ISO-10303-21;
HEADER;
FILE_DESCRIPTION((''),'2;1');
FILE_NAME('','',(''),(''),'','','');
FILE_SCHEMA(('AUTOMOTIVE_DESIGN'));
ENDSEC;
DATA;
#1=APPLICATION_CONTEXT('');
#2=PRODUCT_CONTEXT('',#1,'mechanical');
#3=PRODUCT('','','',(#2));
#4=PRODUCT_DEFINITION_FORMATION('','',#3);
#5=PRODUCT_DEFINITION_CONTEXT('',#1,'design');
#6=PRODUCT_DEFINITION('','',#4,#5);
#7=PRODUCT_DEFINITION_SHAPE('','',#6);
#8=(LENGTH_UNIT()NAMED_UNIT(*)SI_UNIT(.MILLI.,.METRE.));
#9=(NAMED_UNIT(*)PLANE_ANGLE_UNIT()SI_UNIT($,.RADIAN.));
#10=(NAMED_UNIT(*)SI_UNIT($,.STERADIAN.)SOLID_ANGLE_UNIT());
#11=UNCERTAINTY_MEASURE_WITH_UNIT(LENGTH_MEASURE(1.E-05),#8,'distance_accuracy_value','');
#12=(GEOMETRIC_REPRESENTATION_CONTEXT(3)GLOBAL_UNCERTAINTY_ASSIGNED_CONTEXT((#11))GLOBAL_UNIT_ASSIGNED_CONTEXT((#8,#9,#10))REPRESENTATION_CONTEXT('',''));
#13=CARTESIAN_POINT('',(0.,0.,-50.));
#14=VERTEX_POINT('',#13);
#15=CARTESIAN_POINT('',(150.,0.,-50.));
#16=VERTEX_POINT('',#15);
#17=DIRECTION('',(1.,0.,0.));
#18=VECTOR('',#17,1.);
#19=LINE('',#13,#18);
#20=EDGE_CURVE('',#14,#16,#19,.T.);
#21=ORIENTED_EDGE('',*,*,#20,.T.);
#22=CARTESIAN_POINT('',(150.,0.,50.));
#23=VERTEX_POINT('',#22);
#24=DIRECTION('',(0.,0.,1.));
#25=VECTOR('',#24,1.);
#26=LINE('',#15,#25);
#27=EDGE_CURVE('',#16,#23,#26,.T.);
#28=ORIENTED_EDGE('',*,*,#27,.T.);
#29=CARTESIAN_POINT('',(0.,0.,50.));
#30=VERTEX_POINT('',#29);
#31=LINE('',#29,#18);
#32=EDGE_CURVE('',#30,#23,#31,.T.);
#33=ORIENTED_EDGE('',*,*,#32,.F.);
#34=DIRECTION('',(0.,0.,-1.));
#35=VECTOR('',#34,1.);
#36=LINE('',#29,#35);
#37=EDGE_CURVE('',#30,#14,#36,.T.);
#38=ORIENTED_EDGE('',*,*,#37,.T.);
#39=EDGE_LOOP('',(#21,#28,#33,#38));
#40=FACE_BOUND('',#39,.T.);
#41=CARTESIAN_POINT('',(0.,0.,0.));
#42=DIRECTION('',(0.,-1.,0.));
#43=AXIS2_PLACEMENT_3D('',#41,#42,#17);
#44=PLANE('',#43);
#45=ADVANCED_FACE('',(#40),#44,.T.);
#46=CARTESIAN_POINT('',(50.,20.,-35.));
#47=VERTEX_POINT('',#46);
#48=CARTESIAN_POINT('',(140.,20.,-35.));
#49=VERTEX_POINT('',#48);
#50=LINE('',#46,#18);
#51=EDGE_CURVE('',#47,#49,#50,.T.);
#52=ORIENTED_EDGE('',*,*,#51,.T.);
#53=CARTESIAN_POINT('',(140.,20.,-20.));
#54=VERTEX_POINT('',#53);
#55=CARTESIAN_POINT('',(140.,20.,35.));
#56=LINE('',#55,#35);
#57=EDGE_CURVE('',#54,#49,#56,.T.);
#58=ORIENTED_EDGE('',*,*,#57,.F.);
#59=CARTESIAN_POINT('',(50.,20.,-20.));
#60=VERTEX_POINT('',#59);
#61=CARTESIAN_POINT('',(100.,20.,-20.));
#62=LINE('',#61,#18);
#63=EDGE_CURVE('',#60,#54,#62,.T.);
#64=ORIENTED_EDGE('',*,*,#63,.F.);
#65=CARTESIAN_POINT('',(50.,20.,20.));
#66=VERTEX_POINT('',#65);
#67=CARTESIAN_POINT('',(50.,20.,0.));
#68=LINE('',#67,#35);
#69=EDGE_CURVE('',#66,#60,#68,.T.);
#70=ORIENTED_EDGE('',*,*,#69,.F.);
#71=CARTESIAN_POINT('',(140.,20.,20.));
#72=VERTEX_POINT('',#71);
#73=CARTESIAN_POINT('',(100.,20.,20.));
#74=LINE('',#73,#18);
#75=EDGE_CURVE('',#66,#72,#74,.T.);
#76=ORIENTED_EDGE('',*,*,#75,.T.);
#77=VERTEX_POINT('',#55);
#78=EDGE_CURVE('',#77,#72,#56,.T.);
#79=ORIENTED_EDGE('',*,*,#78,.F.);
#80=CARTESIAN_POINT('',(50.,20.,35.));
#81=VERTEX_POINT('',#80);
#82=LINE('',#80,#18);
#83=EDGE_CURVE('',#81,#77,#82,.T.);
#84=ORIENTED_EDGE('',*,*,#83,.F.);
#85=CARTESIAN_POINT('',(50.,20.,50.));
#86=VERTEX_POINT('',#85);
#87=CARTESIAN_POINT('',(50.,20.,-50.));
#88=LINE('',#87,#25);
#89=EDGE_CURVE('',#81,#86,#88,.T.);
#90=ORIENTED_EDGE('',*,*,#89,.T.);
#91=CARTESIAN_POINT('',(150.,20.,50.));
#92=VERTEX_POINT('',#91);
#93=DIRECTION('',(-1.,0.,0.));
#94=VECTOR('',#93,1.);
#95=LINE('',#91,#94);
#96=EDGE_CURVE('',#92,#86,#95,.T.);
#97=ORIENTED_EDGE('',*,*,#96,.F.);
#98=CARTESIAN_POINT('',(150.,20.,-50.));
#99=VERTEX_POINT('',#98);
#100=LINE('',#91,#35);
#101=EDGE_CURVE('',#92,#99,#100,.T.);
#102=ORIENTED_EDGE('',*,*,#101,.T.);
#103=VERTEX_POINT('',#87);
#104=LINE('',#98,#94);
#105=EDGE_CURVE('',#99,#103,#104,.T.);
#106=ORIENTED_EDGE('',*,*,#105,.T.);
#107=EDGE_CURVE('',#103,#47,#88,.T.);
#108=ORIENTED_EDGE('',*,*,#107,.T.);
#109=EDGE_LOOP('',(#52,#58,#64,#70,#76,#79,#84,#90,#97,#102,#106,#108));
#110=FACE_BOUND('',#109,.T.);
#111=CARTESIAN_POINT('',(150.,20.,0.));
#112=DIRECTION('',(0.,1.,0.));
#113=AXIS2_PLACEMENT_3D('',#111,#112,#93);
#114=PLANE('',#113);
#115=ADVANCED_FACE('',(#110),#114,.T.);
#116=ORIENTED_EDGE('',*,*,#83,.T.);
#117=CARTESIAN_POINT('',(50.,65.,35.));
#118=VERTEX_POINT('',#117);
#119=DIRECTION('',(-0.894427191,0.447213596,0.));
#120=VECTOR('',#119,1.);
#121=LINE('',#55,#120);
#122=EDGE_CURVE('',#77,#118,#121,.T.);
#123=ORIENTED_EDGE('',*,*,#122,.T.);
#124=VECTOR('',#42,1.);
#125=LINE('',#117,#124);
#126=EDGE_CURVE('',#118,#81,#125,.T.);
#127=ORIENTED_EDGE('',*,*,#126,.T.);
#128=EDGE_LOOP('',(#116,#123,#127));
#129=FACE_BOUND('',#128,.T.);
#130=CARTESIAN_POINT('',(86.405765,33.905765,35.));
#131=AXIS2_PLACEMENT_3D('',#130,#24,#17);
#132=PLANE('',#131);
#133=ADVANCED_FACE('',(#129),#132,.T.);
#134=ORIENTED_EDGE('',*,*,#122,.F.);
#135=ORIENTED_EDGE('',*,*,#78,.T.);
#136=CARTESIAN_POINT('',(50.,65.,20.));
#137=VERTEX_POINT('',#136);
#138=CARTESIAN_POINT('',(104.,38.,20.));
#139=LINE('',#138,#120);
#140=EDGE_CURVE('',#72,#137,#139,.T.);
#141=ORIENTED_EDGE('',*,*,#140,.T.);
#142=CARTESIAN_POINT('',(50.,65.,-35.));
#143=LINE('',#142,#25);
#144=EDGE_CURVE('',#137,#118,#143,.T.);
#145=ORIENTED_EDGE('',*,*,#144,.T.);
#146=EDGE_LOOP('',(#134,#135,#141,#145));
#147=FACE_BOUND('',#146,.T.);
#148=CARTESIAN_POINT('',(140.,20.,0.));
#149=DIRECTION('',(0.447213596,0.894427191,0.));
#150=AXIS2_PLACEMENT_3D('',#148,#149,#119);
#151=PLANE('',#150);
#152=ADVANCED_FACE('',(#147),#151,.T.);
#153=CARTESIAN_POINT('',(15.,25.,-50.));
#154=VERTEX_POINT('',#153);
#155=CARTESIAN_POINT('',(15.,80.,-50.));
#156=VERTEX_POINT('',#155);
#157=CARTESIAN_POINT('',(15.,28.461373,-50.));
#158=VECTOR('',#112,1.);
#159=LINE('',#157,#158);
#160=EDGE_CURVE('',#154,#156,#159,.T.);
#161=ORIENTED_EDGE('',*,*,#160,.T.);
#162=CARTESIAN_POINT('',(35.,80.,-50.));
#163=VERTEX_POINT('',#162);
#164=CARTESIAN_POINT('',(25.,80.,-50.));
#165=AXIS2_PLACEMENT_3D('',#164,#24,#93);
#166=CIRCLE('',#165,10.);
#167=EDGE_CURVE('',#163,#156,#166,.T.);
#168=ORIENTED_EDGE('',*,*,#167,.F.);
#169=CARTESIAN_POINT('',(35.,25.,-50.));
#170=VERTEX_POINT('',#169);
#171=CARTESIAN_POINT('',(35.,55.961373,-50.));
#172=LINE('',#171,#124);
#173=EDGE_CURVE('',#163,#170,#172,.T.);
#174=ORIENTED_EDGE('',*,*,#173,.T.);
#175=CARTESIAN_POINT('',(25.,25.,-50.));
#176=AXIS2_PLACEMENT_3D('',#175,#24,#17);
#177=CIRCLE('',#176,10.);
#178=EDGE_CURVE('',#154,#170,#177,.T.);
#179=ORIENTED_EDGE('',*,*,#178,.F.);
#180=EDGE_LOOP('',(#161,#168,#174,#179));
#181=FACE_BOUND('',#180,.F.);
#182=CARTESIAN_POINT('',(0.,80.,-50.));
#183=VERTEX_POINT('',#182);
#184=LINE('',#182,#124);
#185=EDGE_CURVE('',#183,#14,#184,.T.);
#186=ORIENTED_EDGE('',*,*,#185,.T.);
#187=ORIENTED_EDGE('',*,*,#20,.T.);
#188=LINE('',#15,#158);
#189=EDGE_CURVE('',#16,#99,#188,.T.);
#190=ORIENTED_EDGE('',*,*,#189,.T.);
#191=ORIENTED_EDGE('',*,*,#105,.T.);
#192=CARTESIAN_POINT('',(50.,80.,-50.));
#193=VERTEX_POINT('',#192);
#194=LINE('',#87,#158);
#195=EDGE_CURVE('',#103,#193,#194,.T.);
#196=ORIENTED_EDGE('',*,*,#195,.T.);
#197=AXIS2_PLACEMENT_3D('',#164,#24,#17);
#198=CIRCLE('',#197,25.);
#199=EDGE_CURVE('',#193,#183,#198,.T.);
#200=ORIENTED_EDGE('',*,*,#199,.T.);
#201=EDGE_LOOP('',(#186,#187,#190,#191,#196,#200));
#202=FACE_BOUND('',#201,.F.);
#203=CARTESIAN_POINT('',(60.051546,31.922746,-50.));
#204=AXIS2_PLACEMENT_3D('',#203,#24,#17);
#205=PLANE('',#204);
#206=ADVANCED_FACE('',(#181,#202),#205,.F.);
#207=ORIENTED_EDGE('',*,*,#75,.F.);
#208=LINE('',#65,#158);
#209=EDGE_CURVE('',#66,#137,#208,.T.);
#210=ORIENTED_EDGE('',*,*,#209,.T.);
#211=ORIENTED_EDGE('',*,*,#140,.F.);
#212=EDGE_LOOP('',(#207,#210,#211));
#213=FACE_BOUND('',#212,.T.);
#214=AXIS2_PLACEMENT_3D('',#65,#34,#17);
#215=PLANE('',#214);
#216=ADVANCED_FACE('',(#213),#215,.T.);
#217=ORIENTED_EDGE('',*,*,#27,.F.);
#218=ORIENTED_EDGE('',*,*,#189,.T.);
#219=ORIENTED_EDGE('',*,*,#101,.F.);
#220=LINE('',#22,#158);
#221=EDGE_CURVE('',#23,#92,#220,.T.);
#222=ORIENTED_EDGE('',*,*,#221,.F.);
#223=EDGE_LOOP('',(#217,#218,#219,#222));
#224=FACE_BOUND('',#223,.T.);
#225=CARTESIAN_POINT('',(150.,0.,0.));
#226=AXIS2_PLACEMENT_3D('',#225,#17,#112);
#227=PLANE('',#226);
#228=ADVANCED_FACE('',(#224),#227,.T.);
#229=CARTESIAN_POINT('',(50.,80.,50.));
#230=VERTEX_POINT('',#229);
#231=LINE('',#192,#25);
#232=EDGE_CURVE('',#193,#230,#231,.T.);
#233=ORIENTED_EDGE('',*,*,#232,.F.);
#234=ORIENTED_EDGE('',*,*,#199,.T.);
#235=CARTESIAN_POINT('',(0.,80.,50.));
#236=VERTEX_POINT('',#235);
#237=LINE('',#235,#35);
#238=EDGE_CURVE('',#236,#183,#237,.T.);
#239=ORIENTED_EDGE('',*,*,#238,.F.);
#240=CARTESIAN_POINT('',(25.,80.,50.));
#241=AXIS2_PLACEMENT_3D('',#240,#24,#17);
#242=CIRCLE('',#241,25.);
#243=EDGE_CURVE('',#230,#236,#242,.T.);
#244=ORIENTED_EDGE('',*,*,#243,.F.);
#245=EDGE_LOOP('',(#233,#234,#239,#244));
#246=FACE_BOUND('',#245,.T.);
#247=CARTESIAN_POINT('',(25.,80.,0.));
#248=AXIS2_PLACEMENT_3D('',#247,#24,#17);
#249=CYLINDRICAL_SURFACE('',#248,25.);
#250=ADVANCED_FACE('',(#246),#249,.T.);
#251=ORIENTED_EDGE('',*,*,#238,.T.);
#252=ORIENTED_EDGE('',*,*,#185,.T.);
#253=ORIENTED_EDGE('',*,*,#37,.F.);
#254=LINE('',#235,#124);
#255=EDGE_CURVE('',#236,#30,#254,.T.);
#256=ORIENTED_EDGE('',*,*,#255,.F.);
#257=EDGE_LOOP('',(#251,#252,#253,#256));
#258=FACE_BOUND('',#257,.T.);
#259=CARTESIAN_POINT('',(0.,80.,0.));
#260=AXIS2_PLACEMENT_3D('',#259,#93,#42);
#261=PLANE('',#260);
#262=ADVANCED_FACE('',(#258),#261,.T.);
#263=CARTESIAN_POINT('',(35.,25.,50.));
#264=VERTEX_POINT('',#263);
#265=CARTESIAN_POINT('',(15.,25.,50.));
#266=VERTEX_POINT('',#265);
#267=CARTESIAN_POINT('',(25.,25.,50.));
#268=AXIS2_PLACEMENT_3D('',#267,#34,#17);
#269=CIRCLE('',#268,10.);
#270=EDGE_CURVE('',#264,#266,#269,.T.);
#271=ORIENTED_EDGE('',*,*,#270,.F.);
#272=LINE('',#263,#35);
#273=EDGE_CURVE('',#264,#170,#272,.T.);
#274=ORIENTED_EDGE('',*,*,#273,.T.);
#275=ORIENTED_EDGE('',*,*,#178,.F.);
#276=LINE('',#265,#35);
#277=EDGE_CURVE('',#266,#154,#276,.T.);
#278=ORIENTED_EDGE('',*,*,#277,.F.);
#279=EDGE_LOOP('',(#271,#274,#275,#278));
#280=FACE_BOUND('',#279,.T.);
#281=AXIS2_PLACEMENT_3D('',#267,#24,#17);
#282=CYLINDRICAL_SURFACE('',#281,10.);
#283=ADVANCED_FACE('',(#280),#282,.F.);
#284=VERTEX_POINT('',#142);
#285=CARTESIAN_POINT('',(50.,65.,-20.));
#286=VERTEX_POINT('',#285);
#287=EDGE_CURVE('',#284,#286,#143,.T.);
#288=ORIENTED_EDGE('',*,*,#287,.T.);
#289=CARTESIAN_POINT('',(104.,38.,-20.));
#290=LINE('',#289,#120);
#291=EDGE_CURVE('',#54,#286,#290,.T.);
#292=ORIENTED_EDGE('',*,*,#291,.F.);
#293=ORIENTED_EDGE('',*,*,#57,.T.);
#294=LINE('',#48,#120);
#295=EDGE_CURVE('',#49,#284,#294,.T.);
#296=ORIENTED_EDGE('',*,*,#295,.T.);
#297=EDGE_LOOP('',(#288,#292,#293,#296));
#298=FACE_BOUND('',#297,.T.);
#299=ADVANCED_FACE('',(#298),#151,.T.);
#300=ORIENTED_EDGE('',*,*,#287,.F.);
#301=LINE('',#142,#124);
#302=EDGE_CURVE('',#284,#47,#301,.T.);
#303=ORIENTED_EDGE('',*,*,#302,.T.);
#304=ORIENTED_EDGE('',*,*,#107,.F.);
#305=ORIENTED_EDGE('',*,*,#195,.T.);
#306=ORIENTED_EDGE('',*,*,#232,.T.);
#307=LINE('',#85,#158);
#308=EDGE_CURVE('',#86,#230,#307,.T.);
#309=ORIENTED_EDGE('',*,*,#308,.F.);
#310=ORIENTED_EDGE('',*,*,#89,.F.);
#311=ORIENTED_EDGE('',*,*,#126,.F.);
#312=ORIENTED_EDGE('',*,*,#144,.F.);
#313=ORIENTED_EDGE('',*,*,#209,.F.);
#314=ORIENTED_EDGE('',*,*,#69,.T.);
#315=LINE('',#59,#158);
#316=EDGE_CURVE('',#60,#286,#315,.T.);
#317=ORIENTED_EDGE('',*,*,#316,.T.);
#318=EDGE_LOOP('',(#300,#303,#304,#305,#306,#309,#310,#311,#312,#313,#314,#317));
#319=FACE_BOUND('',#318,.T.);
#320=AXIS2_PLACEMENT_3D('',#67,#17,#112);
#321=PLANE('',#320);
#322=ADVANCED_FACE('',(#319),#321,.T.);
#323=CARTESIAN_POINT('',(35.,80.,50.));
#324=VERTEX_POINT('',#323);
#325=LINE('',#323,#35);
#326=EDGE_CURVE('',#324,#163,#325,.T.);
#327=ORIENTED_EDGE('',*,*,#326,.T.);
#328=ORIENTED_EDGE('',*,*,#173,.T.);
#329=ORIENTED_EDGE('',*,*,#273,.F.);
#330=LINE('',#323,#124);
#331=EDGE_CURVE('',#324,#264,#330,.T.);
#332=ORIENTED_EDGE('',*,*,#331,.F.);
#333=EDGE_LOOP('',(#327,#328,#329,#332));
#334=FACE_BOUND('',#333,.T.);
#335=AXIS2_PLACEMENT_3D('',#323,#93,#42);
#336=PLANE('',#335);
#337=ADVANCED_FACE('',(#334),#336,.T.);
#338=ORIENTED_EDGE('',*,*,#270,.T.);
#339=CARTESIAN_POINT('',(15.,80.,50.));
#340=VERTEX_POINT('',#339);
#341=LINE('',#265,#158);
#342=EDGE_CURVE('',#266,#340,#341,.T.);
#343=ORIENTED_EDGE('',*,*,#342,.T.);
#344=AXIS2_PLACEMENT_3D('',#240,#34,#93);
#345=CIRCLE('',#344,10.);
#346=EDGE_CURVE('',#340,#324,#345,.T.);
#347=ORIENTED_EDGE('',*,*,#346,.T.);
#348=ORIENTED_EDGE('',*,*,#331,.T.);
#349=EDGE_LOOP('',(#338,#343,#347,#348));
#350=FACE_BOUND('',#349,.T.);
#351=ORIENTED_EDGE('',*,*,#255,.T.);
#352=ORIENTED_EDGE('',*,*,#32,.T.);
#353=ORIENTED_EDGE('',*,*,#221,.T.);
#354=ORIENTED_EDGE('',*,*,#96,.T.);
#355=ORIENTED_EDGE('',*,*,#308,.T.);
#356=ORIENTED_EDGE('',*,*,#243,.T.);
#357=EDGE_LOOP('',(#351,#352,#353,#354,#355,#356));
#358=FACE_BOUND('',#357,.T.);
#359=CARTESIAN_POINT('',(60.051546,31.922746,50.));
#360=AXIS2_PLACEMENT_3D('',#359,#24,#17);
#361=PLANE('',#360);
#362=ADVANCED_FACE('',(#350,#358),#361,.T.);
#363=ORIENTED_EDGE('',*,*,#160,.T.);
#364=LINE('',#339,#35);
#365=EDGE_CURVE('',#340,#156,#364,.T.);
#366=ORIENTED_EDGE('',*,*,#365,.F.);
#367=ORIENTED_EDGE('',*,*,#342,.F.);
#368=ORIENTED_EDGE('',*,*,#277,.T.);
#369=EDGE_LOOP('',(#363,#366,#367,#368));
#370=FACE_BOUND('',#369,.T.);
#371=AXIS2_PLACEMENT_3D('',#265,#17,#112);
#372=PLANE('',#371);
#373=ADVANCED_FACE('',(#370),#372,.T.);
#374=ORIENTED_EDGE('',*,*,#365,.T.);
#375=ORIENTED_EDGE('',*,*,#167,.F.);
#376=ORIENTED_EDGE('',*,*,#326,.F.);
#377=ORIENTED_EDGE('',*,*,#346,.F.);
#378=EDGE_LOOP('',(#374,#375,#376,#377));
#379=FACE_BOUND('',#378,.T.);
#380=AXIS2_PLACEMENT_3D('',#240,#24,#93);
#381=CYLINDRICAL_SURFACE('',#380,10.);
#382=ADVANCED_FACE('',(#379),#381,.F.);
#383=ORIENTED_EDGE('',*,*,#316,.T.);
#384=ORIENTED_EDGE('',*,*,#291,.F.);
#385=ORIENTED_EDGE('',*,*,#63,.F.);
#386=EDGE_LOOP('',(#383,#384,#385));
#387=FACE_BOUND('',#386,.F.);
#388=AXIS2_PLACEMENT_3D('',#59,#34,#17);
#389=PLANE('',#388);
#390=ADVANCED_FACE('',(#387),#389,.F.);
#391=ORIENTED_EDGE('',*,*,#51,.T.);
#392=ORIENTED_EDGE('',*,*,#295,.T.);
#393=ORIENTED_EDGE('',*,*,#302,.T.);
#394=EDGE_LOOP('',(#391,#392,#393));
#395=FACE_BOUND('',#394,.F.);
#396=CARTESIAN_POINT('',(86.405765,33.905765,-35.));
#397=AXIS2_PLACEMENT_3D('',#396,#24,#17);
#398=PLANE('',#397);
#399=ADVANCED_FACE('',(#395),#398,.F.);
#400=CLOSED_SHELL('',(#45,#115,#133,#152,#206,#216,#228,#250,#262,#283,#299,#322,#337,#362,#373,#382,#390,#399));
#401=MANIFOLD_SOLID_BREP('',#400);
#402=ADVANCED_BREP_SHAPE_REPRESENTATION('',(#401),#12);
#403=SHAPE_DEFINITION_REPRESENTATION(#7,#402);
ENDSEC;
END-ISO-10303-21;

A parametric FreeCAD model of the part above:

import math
import FreeCAD as App
import Part
import Sketcher

V = App.Vector


def add_polygon(sketch, points):
    """Adds a closed chain of lines whose ends are joined by coincident constraints."""
    first, n = sketch.GeometryCount, len(points)
    for a, b in zip(points, points[1:] + points[:1]):
        sketch.addGeometry(Part.LineSegment(App.Vector(*a, 0), App.Vector(*b, 0)), False)
    for i in range(n):
        sketch.addConstraint(Sketcher.Constraint("Coincident", first + i, 2, first + (i + 1) % n, 1))

doc = App.newDocument("Part")
body = doc.addObject("PartDesign::Body", "Body")

# Sketch on XY plane
sketch1 = body.newObject("Sketcher::SketchObject", "Sketch")
sketch1.AttachmentSupport = (doc.getObject("XY_Plane"), [""])
sketch1.MapMode = "FlatFace"
sketch1.addGeometry([
    Part.LineSegment(V(0, 0, 0), V(150, 0, 0)),  # 0
    Part.LineSegment(V(150, 0, 0), V(150, 20, 0)),  # 1
    Part.LineSegment(V(150, 20, 0), V(50, 20, 0)),  # 2
    Part.LineSegment(V(50, 20, 0), V(50, 80, 0)),  # 3
    Part.ArcOfCircle(Part.Circle(V(25, 80, 0), V(0, 0, 1), 25), math.radians(0), math.radians(180)),  # 4
    Part.LineSegment(V(0, 80, 0), V(0, 0, 0)),  # 5
], False)
sketch1.addConstraint([
    Sketcher.Constraint("Coincident", 0, 2, 1, 1),
    Sketcher.Constraint("Coincident", 1, 2, 2, 1),
    Sketcher.Constraint("Coincident", 2, 2, 3, 1),
    Sketcher.Constraint("Tangent", 3, 2, 4, 1),
    Sketcher.Constraint("Tangent", 4, 2, 5, 1),
    Sketcher.Constraint("Coincident", 5, 2, 0, 1),
    Sketcher.Constraint("Horizontal", 0),
    Sketcher.Constraint("Vertical", 1),
    Sketcher.Constraint("Horizontal", 2),
    Sketcher.Constraint("Vertical", 3),
    Sketcher.Constraint("Vertical", 5),
    Sketcher.Constraint("Coincident", 5, 2, -1, 1),
    Sketcher.Constraint("Radius", 4, 25.0),
    Sketcher.Constraint("DistanceX", 0, 1, 0, 2, 150.0),
    Sketcher.Constraint("DistanceY", 1, 1, 1, 2, 20.0),
    Sketcher.Constraint("DistanceY", 3, 1, 3, 2, 60.0),
])
pad1 = body.newObject("PartDesign::Pad", "Pad")
pad1.Profile = sketch1
pad1.Type = "TwoLengths"
pad1.Length = 50
pad1.Length2 = 50

# Sketch on XY plane
sketch2 = body.newObject("Sketcher::SketchObject", "Sketch001")
sketch2.AttachmentSupport = (doc.getObject("XY_Plane"), [""])
sketch2.MapMode = "FlatFace"
sketch2.AttachmentOffset = App.Placement(V(0, 0, 50), App.Rotation())
sketch2.addGeometry([
    Part.LineSegment(V(35, 25, 0), V(35, 80, 0)),
    Part.ArcOfCircle(Part.Circle(V(25, 80, 0), V(0, 0, 1), 10), math.radians(0), math.radians(180)),
    Part.LineSegment(V(15, 80, 0), V(15, 25, 0)),
    Part.ArcOfCircle(Part.Circle(V(25, 25, 0), V(0, 0, 1), 10), math.radians(180), math.radians(360)),
], False)
sketch2.addConstraint([
    Sketcher.Constraint("Tangent", 0, 2, 1, 1),
    Sketcher.Constraint("Tangent", 1, 2, 2, 1),
    Sketcher.Constraint("Tangent", 2, 2, 3, 1),
    Sketcher.Constraint("Tangent", 3, 2, 0, 1),
    Sketcher.Constraint("Vertical", 0),
    Sketcher.Constraint("Vertical", 2),
    Sketcher.Constraint("Radius", 1, 10.0),
    Sketcher.Constraint("DistanceY", 0, 1, 0, 2, 55.0),
    Sketcher.Constraint("DistanceX", -1, 1, 1, 3, 25.0),
    Sketcher.Constraint("DistanceY", -1, 1, 1, 3, 80.0),
])
pocket1 = body.newObject("PartDesign::Pocket", "Pocket")
pocket1.Profile = sketch2
pocket1.Type = "ThroughAll"

# Sketch on XY plane
sketch3 = body.newObject("Sketcher::SketchObject", "Sketch002")
sketch3.AttachmentSupport = (doc.getObject("XY_Plane"), [""])
sketch3.MapMode = "FlatFace"
add_polygon(sketch3, [(50, 65), (50, 20), (140, 20)])  # lines 0-2
sketch3.addConstraint([
    Sketcher.Constraint("Vertical", 0),
    Sketcher.Constraint("Horizontal", 1),
    Sketcher.Constraint("DistanceX", 1, 1, 1, 2, 90.0),
    Sketcher.Constraint("DistanceY", 0, 2, 0, 1, 45.0),
    Sketcher.Constraint("DistanceX", -1, 1, 0, 2, 50.0),
    Sketcher.Constraint("DistanceY", -1, 1, 0, 2, 20.0),
])
pad2 = body.newObject("PartDesign::Pad", "Pad001")
pad2.Profile = sketch3
pad2.Type = "TwoLengths"
pad2.Length = 35
pad2.Length2 = 35

# Sketch on XZ plane
sketch4 = body.newObject("Sketcher::SketchObject", "Sketch003")
sketch4.AttachmentSupport = (doc.getObject("XZ_Plane"), [""])
sketch4.MapMode = "FlatFace"
sketch4.AttachmentOffset = App.Placement(V(0, 0, -20), App.Rotation())
add_polygon(sketch4, [(50, -20), (50, 20), (150, 20), (150, -20)])  # lines 0-3
sketch4.addConstraint([
    Sketcher.Constraint("Vertical", 0),
    Sketcher.Constraint("Horizontal", 1),
    Sketcher.Constraint("Vertical", 2),
    Sketcher.Constraint("Horizontal", 3),
    Sketcher.Constraint("DistanceX", 1, 1, 1, 2, 100.0),
    Sketcher.Constraint("DistanceY", 0, 1, 0, 2, 40.0),
    Sketcher.Constraint("DistanceX", -1, 1, 0, 2, 50.0),
    Sketcher.Constraint("DistanceY", -1, 1, 0, 2, 20.0),
])
pocket2 = body.newObject("PartDesign::Pocket", "Pocket001")
pocket2.Profile = sketch4
pocket2.Type = "ThroughAll"

doc.recompute()
